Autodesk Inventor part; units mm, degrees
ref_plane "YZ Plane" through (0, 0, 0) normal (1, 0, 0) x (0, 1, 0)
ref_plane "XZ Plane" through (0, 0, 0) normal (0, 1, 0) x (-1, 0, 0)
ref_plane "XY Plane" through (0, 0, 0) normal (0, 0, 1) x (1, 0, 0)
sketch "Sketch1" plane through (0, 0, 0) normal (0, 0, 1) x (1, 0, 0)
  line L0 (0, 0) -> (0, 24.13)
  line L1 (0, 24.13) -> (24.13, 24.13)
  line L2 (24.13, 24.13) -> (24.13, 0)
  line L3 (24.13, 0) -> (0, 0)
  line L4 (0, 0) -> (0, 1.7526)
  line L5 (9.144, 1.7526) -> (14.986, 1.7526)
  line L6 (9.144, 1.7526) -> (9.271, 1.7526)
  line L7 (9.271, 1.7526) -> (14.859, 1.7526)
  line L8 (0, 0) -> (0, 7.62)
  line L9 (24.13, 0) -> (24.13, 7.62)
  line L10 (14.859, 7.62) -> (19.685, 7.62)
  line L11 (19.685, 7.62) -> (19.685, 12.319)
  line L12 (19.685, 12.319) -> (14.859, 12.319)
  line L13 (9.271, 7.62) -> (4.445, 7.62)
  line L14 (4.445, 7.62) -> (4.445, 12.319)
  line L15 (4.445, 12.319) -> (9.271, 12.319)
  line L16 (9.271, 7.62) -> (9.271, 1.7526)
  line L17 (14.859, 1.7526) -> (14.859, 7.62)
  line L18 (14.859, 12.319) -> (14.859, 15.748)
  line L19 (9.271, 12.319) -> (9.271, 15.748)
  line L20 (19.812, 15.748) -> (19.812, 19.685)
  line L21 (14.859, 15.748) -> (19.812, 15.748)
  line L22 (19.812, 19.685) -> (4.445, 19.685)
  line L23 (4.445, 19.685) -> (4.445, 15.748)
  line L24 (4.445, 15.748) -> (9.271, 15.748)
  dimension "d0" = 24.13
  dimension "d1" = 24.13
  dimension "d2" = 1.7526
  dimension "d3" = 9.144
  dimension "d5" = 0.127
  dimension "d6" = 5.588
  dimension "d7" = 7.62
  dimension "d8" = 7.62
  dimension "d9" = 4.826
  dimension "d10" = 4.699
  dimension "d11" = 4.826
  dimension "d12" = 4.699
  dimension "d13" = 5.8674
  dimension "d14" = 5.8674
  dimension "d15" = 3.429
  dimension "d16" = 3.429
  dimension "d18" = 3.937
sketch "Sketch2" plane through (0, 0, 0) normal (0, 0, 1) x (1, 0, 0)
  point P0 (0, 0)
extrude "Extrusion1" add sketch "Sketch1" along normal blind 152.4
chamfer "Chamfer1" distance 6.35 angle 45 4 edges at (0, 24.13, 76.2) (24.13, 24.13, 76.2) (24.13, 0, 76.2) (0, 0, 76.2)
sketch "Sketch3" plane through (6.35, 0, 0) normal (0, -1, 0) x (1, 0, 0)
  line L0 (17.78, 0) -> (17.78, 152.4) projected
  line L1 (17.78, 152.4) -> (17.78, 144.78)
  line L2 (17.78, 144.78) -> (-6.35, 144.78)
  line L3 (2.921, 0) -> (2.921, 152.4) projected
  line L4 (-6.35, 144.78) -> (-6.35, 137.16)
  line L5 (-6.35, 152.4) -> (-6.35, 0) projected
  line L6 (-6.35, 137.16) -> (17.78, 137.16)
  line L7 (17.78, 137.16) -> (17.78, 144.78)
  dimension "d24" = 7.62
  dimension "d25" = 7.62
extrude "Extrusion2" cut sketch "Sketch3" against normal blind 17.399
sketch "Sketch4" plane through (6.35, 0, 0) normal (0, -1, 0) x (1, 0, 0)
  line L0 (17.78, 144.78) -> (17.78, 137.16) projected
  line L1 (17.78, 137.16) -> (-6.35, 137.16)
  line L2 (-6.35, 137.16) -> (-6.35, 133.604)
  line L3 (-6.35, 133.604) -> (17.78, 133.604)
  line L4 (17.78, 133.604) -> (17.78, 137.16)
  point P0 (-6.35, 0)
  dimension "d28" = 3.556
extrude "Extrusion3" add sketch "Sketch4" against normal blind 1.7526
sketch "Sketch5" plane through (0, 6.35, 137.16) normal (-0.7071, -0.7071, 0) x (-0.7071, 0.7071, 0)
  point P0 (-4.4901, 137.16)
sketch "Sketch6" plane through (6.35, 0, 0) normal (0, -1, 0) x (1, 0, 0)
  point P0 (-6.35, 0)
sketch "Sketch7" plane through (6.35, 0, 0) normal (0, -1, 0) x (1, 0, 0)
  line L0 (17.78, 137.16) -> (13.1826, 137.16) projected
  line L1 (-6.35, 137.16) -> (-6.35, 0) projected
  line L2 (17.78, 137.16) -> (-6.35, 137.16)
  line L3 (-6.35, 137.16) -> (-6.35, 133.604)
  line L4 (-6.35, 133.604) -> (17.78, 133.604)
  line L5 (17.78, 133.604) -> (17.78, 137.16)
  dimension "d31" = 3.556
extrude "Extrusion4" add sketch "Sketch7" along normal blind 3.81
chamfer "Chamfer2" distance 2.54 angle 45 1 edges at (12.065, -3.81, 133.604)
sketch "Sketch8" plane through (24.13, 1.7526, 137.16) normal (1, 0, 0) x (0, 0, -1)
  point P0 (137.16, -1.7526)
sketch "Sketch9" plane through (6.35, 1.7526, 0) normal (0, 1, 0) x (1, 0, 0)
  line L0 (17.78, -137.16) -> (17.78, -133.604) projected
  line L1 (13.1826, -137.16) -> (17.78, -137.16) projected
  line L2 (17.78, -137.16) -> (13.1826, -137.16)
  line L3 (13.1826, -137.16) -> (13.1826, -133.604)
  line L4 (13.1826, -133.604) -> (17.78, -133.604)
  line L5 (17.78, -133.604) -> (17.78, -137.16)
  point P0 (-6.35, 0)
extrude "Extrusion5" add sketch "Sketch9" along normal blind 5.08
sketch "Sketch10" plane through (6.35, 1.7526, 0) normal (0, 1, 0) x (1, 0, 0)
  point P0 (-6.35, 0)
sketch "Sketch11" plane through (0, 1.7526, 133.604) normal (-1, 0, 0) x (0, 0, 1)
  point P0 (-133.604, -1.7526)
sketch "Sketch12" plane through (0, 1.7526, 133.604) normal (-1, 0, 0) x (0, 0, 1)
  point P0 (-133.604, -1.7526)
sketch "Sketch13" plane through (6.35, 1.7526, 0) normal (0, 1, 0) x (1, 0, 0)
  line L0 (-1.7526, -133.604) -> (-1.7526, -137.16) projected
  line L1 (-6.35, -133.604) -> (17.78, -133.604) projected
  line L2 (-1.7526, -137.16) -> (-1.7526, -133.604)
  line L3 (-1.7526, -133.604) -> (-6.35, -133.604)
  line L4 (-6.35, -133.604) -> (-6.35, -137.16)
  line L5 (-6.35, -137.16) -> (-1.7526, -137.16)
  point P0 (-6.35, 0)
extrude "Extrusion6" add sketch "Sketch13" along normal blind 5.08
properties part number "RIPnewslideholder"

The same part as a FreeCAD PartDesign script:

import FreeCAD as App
import Part
import Sketcher

V = App.Vector
Q = App.Units.Quantity


def edges_at(feature, points):
    """Names of the edges that pass closest to the given points."""
    edges = feature.Shape.Edges
    near = lambda p: min(range(len(edges)), key=lambda i: edges[i].distToShape(Part.Vertex(*p))[0])
    return sorted({f"Edge{near(p) + 1}" for p in points})


def add_polygon(sketch, points):
    """Adds a closed chain of lines whose ends are joined by coincident constraints."""
    first, n = sketch.GeometryCount, len(points)
    for a, b in zip(points, points[1:] + points[:1]):
        sketch.addGeometry(Part.LineSegment(App.Vector(*a, 0), App.Vector(*b, 0)), False)
    for i in range(n):
        sketch.addConstraint(Sketcher.Constraint("Coincident", first + i, 2, first + (i + 1) % n, 1))

doc = App.newDocument("Part")
body = doc.addObject("PartDesign::Body", "Body")

sketch1 = body.newObject("Sketcher::SketchObject", "Sketch")
sketch1.AttachmentSupport = (doc.getObject("XY_Plane"), [""])
sketch1.MapMode = "FlatFace"
add_polygon(sketch1, [(0, 24.1), (0, 0), (24.1, 0), (24.1, 24.1)])
add_polygon(sketch1, [(14.9, 1.8), (9.3, 1.8), (9.3, 7.6), (4.4, 7.6), (4.4, 12.3), (9.3, 12.3), (9.3, 15.7), (4.4, 15.7), (4.4, 19.7), (19.8, 19.7), (19.8, 15.7), (14.9, 15.7), (14.9, 12.3), (19.7, 12.3), (19.7, 7.6), (14.9, 7.6)])
sketch1.addConstraint([
    Sketcher.Constraint("Vertical", 0),
    Sketcher.Constraint("Horizontal", 1),
    Sketcher.Constraint("Vertical", 2),
    Sketcher.Constraint("Horizontal", 3),
    Sketcher.Constraint("Horizontal", 4),
    Sketcher.Constraint("Vertical", 5),
    Sketcher.Constraint("Horizontal", 6),
    Sketcher.Constraint("Vertical", 7),
    Sketcher.Constraint("Horizontal", 8),
    Sketcher.Constraint("Vertical", 9),
    Sketcher.Constraint("Horizontal", 10),
    Sketcher.Constraint("Vertical", 11),
    Sketcher.Constraint("Horizontal", 12),
    Sketcher.Constraint("Vertical", 13),
    Sketcher.Constraint("Horizontal", 14),
    Sketcher.Constraint("Vertical", 15),
    Sketcher.Constraint("Horizontal", 16),
    Sketcher.Constraint("Vertical", 17),
    Sketcher.Constraint("Horizontal", 18),
    Sketcher.Constraint("Vertical", 19),
    Sketcher.Constraint("Coincident", 0, 2, -1, 1),
    Sketcher.Constraint("Horizontal", 10, 2, 13, 2),
    Sketcher.Constraint("Horizontal", 8, 2, 15, 2),
    Sketcher.Constraint("Horizontal", 6, 2, 17, 2),
    Sketcher.Constraint("Vertical", 5, 2, 8, 2),
    Sketcher.Constraint("Vertical", 7, 2, 10, 2),
    Sketcher.Constraint("Vertical", 15, 2, 18, 2),
    Sketcher.Constraint("Equal", 10, 16),
    Sketcher.Constraint("Equal", 3, 0),
    Sketcher.Constraint("DistanceX", 1, 1, 1, 2, Q("0.95 in")),
    Sketcher.Constraint("DistanceX", 4, 2, 4, 1, Q("0.22 in")),
    Sketcher.Constraint("DistanceX", 6, 2, 6, 1, Q("0.19 in")),
    Sketcher.Constraint("DistanceY", -1, 1, 5, 2, Q("0.3 in")),
    Sketcher.Constraint("DistanceY", 5, 1, 5, 2, Q("0.231 in")),
    Sketcher.Constraint("DistanceY", 7, 1, 7, 2, Q("0.185 in")),
    Sketcher.Constraint("DistanceY", 9, 1, 9, 2, Q("0.135 in")),
    Sketcher.Constraint("DistanceY", 11, 1, 11, 2, Q("0.155 in")),
    Sketcher.Constraint("DistanceX", 16, 2, 13, 2, Q("0.005 in")),
    Sketcher.Constraint("DistanceX", -1, 1, 12, 2, Q("0.78 in")),
])
pad1 = body.newObject("PartDesign::Pad", "Pad")
pad1.Profile = sketch1
pad1.Length = Q("6 in")
doc.recompute()

chamfer = body.newObject("PartDesign::Chamfer", "Chamfer")
chamfer.Base = (pad1, edges_at(pad1, [
    (0, 24.13, 76.2),
    (24.13, 24.13, 76.2),
    (24.13, 0, 76.2),
    (0, 0, 76.2),
]))
chamfer.Size = Q("0.25 in")

sketch2 = body.newObject("Sketcher::SketchObject", "Sketch001")
sketch2.AttachmentSupport = (doc.getObject("XZ_Plane"), [""])
sketch2.MapMode = "FlatFace"
add_polygon(sketch2, [(24, 137), (24, 145), (0, 145), (0, 137)])
sketch2.addConstraint([
    Sketcher.Constraint("Vertical", 0),
    Sketcher.Constraint("Horizontal", 1),
    Sketcher.Constraint("Vertical", 2),
    Sketcher.Constraint("Horizontal", 3),
    Sketcher.Constraint("PointOnObject", 1, 2, -2),
    Sketcher.Constraint("DistanceY", 0, 1, 0, 2, Q("0.3 in")),
    Sketcher.Constraint("DistanceX", 1, 2, 1, 1, Q("0.95 in")),
    Sketcher.Constraint("DistanceY", -1, 1, 0, 2, Q("5.7 in")),
])
pocket1 = body.newObject("PartDesign::Pocket", "Pocket")
pocket1.Profile = sketch2
pocket1.Length = Q("0.685 in")

sketch3 = body.newObject("Sketcher::SketchObject", "Sketch002")
sketch3.AttachmentSupport = (doc.getObject("XZ_Plane"), [""])
sketch3.MapMode = "FlatFace"
add_polygon(sketch3, [(24.1, 133.6), (24.1, 137.2), (0, 137.2), (0, 133.6)])
sketch3.addConstraint([
    Sketcher.Constraint("Vertical", 0),
    Sketcher.Constraint("Horizontal", 1),
    Sketcher.Constraint("Vertical", 2),
    Sketcher.Constraint("Horizontal", 3),
    Sketcher.Constraint("PointOnObject", 1, 2, -2),
    Sketcher.Constraint("DistanceY", 0, 1, 0, 2, Q("0.14 in")),
    Sketcher.Constraint("DistanceX", 1, 2, 1, 1, Q("0.95 in")),
    Sketcher.Constraint("DistanceY", -1, 1, 0, 2, Q("5.4 in")),
])
pad2 = body.newObject("PartDesign::Pad", "Pad001")
pad2.Profile = sketch3
pad2.Length = Q("0.069 in")
pad2.Reversed = True

sketch4 = body.newObject("Sketcher::SketchObject", "Sketch003")
sketch4.AttachmentSupport = (doc.getObject("XZ_Plane"), [""])
sketch4.MapMode = "FlatFace"
add_polygon(sketch4, [(24.1, 133.6), (24.1, 137.2), (0, 137.2), (0, 133.6)])
sketch4.addConstraint([
    Sketcher.Constraint("Vertical", 0),
    Sketcher.Constraint("Horizontal", 1),
    Sketcher.Constraint("Vertical", 2),
    Sketcher.Constraint("Horizontal", 3),
    Sketcher.Constraint("PointOnObject", 1, 2, -2),
    Sketcher.Constraint("DistanceY", 0, 1, 0, 2, Q("0.14 in")),
    Sketcher.Constraint("DistanceX", 1, 2, 1, 1, Q("0.95 in")),
    Sketcher.Constraint("DistanceY", -1, 1, 0, 2, Q("5.4 in")),
])
pad3 = body.newObject("PartDesign::Pad", "Pad002")
pad3.Profile = sketch4
pad3.Length = Q("0.15 in")
doc.recompute()

chamfer2 = body.newObject("PartDesign::Chamfer", "Chamfer001")
chamfer2.Base = (pad3, edges_at(pad3, [(12.065, -3.81, 133.604)]))
chamfer2.Size = Q("0.1 in")

sketch5 = body.newObject("Sketcher::SketchObject", "Sketch004")
sketch5.AttachmentSupport = (doc.getObject("XZ_Plane"), [""])
sketch5.MapMode = "FlatFace"
sketch5.AttachmentOffset = App.Placement(V(0, 0, -0.069 * 25.4), App.Rotation())
add_polygon(sketch5, [(19.5, 137.2), (24.1, 137.2), (24.1, 133.6), (19.5, 133.6)])
sketch5.addConstraint([
    Sketcher.Constraint("Horizontal", 0),
    Sketcher.Constraint("Vertical", 1),
    Sketcher.Constraint("Horizontal", 2),
    Sketcher.Constraint("Vertical", 3),
    Sketcher.Constraint("DistanceY", 1, 2, 1, 1, Q("0.14 in")),
    Sketcher.Constraint("DistanceY", -1, 1, 0, 2, Q("5.4 in")),
    Sketcher.Constraint("DistanceX", 0, 1, 0, 2, Q("0.181 in")),
    Sketcher.Constraint("DistanceX", -1, 1, 0, 2, Q("0.95 in")),
])
pad4 = body.newObject("PartDesign::Pad", "Pad003")
pad4.Profile = sketch5
pad4.Length = Q("0.2 in")
pad4.Reversed = True

sketch6 = body.newObject("Sketcher::SketchObject", "Sketch005")
sketch6.AttachmentSupport = (doc.getObject("XZ_Plane"), [""])
sketch6.MapMode = "FlatFace"
sketch6.AttachmentOffset = App.Placement(V(0, 0, -0.069 * 25.4), App.Rotation())
add_polygon(sketch6, [(4.6, 137.2), (4.6, 133.6), (0, 133.6), (0, 137.2)])
sketch6.addConstraint([
    Sketcher.Constraint("Vertical", 0),
    Sketcher.Constraint("Horizontal", 1),
    Sketcher.Constraint("Vertical", 2),
    Sketcher.Constraint("Horizontal", 3),
    Sketcher.Constraint("PointOnObject", 1, 2, -2),
    Sketcher.Constraint("DistanceY", 0, 2, 0, 1, Q("0.14 in")),
    Sketcher.Constraint("DistanceY", -1, 1, 2, 2, Q("5.4 in")),
    Sketcher.Constraint("DistanceX", 1, 2, 1, 1, Q("0.181 in")),
])
pad5 = body.newObject("PartDesign::Pad", "Pad004")
pad5.Profile = sketch6
pad5.Length = Q("0.2 in")
pad5.Reversed = True

doc.recompute()
